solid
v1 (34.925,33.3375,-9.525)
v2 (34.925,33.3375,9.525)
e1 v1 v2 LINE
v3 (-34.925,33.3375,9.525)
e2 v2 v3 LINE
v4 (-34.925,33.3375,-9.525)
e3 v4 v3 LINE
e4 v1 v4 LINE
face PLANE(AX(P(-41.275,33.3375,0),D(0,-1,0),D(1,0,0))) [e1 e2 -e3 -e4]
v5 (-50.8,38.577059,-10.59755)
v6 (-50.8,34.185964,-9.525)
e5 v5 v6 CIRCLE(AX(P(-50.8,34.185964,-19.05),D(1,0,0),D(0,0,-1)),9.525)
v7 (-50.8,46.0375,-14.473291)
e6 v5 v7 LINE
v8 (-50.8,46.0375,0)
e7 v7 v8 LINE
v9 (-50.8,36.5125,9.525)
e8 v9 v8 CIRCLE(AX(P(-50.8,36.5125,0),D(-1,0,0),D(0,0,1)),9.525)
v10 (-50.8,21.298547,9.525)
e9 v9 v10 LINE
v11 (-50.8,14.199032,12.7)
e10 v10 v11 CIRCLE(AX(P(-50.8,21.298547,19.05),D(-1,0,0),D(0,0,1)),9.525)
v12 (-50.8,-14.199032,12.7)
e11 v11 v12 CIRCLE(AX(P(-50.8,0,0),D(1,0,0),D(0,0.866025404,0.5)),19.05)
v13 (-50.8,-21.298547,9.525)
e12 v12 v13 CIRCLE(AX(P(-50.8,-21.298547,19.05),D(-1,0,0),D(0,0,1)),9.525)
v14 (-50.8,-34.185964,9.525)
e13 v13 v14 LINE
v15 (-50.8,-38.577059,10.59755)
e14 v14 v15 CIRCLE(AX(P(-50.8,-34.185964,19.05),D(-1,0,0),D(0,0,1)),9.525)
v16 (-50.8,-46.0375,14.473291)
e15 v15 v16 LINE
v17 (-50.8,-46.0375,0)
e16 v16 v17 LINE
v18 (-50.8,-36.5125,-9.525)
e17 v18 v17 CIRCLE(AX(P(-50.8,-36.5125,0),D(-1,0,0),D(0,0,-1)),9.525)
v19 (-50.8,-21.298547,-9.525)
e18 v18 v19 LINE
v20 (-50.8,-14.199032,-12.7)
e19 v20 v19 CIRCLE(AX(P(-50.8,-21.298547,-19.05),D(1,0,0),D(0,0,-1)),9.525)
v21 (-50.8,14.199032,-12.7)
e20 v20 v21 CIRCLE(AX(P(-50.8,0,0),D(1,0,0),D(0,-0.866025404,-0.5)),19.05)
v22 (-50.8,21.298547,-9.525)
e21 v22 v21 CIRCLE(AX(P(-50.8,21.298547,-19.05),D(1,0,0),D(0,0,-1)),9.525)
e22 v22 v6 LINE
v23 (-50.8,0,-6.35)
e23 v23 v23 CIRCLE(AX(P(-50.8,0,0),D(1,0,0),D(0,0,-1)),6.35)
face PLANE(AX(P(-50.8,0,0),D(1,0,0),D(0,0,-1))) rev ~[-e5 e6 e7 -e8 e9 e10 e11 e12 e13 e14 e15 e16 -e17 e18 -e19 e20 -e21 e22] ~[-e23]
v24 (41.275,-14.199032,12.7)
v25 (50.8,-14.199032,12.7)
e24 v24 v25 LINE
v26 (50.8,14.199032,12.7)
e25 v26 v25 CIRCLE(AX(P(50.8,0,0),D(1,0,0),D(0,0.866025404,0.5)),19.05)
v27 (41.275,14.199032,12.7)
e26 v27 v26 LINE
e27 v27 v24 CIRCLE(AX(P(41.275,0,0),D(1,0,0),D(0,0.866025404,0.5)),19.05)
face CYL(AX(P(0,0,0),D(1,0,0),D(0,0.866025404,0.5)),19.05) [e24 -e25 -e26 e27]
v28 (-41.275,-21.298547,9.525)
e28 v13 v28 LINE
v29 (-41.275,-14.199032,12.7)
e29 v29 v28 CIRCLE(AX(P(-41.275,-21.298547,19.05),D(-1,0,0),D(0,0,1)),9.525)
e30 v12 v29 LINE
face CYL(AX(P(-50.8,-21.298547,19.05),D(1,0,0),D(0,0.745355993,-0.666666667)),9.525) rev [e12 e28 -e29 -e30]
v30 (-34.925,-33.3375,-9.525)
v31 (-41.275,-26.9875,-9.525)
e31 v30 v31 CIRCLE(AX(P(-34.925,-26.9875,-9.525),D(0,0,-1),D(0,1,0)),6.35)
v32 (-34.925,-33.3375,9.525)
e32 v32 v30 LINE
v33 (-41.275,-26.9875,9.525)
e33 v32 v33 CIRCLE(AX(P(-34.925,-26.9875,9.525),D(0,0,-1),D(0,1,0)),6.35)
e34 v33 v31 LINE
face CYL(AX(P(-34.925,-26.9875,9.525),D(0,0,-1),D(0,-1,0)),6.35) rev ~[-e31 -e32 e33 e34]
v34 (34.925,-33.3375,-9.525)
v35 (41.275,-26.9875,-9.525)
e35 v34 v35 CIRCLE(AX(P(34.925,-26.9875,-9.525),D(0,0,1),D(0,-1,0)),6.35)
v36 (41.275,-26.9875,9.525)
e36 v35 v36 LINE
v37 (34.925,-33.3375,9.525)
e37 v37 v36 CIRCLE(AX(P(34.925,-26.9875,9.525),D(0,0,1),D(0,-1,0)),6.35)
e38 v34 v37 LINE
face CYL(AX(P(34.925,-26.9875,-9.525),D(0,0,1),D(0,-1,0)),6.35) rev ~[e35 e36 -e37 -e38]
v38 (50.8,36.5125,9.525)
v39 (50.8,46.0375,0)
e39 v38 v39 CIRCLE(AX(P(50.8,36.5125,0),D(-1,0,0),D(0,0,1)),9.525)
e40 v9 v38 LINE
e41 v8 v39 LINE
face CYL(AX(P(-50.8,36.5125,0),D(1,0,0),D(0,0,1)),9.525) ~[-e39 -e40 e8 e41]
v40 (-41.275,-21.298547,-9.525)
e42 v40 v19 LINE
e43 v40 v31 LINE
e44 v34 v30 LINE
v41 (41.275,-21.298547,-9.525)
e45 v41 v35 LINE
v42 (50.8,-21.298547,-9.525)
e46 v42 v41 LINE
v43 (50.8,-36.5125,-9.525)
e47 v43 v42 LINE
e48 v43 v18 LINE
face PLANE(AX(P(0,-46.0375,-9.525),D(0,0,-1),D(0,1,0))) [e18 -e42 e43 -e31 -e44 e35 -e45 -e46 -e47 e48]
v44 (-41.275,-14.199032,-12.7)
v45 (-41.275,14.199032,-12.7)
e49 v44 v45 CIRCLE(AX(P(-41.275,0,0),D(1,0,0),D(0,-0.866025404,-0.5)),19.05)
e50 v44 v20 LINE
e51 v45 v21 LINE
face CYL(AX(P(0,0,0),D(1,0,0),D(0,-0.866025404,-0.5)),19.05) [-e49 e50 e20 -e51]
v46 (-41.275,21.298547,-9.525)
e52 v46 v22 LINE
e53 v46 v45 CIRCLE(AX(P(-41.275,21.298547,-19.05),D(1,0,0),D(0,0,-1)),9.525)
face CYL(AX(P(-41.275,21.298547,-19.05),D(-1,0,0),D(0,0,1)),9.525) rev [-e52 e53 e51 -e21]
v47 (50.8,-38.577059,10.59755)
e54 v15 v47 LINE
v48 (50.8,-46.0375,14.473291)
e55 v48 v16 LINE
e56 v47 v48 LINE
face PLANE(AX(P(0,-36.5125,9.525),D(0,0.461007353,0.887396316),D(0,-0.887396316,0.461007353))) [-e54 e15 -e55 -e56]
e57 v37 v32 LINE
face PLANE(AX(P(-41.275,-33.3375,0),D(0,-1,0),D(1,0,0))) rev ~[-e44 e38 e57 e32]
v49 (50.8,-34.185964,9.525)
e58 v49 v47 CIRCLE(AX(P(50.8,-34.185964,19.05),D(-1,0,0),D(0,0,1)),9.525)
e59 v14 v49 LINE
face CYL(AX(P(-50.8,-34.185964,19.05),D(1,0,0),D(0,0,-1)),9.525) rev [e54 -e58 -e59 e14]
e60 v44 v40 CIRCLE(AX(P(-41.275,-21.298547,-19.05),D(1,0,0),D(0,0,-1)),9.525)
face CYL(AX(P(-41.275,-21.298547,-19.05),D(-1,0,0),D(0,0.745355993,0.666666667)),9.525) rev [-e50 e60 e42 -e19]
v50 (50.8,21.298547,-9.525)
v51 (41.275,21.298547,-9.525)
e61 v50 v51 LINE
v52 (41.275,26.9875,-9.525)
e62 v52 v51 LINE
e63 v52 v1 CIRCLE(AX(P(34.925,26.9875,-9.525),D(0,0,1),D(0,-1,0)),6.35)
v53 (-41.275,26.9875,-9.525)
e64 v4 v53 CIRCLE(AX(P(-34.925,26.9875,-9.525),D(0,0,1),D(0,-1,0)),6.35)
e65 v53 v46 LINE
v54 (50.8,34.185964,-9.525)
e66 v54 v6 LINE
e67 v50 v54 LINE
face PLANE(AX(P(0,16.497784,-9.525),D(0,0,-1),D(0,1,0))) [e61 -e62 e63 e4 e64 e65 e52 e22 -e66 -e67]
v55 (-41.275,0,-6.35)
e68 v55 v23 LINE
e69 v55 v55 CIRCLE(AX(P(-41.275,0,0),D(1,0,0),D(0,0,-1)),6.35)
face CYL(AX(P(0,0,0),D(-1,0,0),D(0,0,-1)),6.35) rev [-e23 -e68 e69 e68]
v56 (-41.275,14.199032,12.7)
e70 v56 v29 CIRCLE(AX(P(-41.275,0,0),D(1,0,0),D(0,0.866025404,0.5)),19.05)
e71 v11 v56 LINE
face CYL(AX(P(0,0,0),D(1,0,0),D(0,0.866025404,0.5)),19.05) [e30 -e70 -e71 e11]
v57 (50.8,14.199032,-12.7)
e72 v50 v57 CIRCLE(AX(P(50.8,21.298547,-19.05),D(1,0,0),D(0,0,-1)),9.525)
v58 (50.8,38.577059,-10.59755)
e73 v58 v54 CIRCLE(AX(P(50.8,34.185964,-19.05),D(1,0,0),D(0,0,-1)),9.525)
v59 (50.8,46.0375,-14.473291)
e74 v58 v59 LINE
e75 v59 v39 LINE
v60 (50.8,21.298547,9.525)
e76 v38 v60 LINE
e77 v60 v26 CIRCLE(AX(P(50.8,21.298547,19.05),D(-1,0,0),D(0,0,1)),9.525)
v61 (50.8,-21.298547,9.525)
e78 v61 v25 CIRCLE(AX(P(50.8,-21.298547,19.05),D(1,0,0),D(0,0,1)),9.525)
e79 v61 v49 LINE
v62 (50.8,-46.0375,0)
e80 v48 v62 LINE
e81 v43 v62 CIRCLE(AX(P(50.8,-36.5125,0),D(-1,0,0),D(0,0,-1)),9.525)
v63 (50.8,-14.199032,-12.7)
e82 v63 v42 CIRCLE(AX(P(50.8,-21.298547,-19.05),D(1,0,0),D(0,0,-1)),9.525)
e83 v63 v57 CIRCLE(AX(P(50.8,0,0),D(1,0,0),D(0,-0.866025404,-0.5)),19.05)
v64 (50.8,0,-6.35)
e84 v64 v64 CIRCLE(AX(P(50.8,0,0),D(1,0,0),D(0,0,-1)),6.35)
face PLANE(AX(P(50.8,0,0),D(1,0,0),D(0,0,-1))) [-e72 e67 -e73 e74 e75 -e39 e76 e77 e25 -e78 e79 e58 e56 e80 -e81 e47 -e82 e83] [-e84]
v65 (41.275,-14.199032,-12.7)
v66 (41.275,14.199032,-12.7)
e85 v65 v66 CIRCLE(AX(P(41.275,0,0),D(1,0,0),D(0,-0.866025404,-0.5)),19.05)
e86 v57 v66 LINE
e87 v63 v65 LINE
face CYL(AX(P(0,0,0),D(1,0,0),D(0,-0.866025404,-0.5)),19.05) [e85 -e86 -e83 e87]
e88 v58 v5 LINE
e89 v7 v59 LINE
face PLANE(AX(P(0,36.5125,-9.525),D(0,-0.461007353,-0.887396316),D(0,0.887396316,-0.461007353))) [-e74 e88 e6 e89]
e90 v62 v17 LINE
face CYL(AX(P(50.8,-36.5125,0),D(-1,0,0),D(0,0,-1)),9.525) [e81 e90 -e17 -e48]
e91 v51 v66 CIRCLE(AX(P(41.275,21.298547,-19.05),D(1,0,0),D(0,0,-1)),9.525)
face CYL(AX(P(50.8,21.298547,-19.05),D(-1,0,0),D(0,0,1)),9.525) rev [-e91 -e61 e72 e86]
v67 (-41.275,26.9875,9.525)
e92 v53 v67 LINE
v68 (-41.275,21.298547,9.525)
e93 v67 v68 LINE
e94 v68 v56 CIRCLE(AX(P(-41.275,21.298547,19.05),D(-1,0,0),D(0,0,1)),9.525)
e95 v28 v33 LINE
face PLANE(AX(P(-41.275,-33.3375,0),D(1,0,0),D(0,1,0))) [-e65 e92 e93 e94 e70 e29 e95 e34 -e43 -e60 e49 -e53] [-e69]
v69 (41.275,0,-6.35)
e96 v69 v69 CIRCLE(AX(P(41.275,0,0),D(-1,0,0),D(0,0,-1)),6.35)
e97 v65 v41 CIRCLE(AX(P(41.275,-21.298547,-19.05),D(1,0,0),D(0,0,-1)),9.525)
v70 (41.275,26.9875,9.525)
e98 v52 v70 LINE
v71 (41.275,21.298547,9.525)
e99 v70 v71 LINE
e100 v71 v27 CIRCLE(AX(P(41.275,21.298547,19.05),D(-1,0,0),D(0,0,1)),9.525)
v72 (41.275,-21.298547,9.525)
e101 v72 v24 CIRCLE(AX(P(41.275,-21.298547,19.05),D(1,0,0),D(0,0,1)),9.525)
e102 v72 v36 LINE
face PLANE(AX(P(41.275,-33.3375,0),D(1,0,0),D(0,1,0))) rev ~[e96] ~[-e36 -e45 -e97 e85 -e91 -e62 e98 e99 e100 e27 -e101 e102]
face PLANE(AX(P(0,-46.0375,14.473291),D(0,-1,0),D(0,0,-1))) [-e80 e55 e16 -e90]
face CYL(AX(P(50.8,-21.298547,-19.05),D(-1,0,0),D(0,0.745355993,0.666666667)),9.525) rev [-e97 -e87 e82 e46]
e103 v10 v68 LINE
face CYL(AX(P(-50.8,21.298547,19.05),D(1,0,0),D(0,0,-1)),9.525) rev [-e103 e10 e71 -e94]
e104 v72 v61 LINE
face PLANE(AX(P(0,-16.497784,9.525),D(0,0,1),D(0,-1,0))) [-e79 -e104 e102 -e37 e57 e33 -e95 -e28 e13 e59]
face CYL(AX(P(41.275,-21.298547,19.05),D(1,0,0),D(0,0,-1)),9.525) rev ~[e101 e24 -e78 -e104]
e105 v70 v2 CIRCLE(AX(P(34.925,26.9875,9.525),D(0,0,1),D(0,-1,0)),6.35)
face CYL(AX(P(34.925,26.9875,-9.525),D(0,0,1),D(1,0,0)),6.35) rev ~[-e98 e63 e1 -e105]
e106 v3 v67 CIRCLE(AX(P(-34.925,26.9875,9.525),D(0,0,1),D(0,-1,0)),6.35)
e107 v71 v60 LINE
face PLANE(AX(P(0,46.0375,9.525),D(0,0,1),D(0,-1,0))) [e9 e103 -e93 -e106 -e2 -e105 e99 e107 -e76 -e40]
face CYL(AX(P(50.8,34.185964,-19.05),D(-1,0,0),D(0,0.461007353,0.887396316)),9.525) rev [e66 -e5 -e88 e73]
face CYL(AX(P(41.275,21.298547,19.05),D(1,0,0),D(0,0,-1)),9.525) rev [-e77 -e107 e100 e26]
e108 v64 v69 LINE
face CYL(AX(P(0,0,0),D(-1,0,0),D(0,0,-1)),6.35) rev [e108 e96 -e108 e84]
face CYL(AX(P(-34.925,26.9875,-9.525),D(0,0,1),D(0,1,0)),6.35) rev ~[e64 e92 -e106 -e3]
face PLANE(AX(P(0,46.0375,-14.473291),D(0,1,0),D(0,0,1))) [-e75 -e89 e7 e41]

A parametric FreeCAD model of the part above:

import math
import FreeCAD as App
import Part
import Sketcher

V = App.Vector
Q = App.Units.Quantity


def edges_at(feature, points):
    """Names of the edges that pass closest to the given points."""
    edges = feature.Shape.Edges
    near = lambda p: min(range(len(edges)), key=lambda i: edges[i].distToShape(Part.Vertex(*p))[0])
    return sorted({f"Edge{near(p) + 1}" for p in points})


def add_polygon(sketch, points):
    """Adds a closed chain of lines whose ends are joined by coincident constraints."""
    first, n = sketch.GeometryCount, len(points)
    for a, b in zip(points, points[1:] + points[:1]):
        sketch.addGeometry(Part.LineSegment(App.Vector(*a, 0), App.Vector(*b, 0)), False)
    for i in range(n):
        sketch.addConstraint(Sketcher.Constraint("Coincident", first + i, 2, first + (i + 1) % n, 1))

doc = App.newDocument("Part")
body = doc.addObject("PartDesign::Body", "Body")

sketch1 = body.newObject("Sketcher::SketchObject", "Sketch")
sketch1.AttachmentSupport = (doc.getObject("YZ_Plane"), [""])
sketch1.MapMode = "FlatFace"
sketch1.addGeometry([
    Part.LineSegment(V(36.5125, -9.525, 0), V(46.0375, -14.473291, 0)),
    Part.LineSegment(V(46.0375, -14.473291, 0), V(46.0375, 9.525, 0)),
    Part.LineSegment(V(46.0375, 9.525, 0), V(16.497784, 9.525, 0)),
    Part.ArcOfCircle(Part.Circle(V(0, 0, 0), V(0, 0, 1), 19.05), math.radians(30), math.radians(150)),
    Part.LineSegment(V(-16.497784, 9.525, 0), V(-36.5125, 9.525, 0)),
    Part.LineSegment(V(-36.5125, 9.525, 0), V(-46.0375, 14.473291, 0)),
    Part.LineSegment(V(-46.0375, 14.473291, 0), V(-46.0375, -9.525, 0)),
    Part.LineSegment(V(-46.0375, -9.525, 0), V(-16.497784, -9.525, 0)),
    Part.ArcOfCircle(Part.Circle(V(0, 0, 0), V(0, 0, 1), 19.05), math.radians(-150), math.radians(-30)),
    Part.LineSegment(V(16.497784, -9.525, 0), V(36.5125, -9.525, 0)),
    Part.Circle(V(0, 0, 0), V(0, 0, 1), 6.35),
], False)
sketch1.addConstraint([
    Sketcher.Constraint("Coincident", 0, 2, 1, 1),
    Sketcher.Constraint("Coincident", 1, 2, 2, 1),
    Sketcher.Constraint("Coincident", 2, 2, 3, 1),
    Sketcher.Constraint("Coincident", 3, 2, 4, 1),
    Sketcher.Constraint("Coincident", 4, 2, 5, 1),
    Sketcher.Constraint("Coincident", 5, 2, 6, 1),
    Sketcher.Constraint("Coincident", 6, 2, 7, 1),
    Sketcher.Constraint("Coincident", 7, 2, 8, 1),
    Sketcher.Constraint("Coincident", 8, 2, 9, 1),
    Sketcher.Constraint("Coincident", 9, 2, 0, 1),
    Sketcher.Constraint("Vertical", 1),
    Sketcher.Constraint("Horizontal", 2),
    Sketcher.Constraint("Horizontal", 4),
    Sketcher.Constraint("Vertical", 6),
    Sketcher.Constraint("Horizontal", 7),
    Sketcher.Constraint("Horizontal", 9),
    Sketcher.Constraint("Coincident", 3, 3, -1, 1),
    Sketcher.Constraint("Coincident", 8, 3, -1, 1),
    Sketcher.Constraint("Coincident", 10, 3, -1, 1),
    Sketcher.Constraint("Equal", 3, 8),
    Sketcher.Constraint("Symmetric", 0, 2, 5, 2, -1, 1),
    Sketcher.Constraint("Symmetric", 4, 2, 9, 2, -1, 1),
    Sketcher.Constraint("Horizontal", 2, 2, 3, 2),
    Sketcher.Constraint("Horizontal", 7, 2, 8, 2),
    Sketcher.Constraint("Diameter", 10, Q("0.5 in")),
    Sketcher.Constraint("Radius", 3, Q("0.75 in")),
    Sketcher.Constraint("DistanceY", 6, 2, 4, 2, Q("0.75 in")),
    Sketcher.Constraint("DistanceX", -1, 1, 0, 2, Q("1.8125 in")),
    Sketcher.Constraint("DistanceX", 4, 2, -1, 1, Q("1.4375 in")),
    Sketcher.Constraint("DistanceY", 1, 1, 1, 2, 23.998291),
])
pad1 = body.newObject("PartDesign::Pad", "Pad")
pad1.Profile = sketch1
pad1.Length = Q("4 in")
pad1.Midplane = True

sketch2 = body.newObject("Sketcher::SketchObject", "Sketch001")
sketch2.AttachmentSupport = (doc.getObject("XY_Plane"), [""])
sketch2.MapMode = "FlatFace"
add_polygon(sketch2, [(-41.275, 33.3375), (-41.275, -33.3375), (41.275, -33.3375), (41.275, 33.3375)])
sketch2.addConstraint([
    Sketcher.Constraint("Vertical", 0),
    Sketcher.Constraint("Horizontal", 1),
    Sketcher.Constraint("Vertical", 2),
    Sketcher.Constraint("Horizontal", 3),
    Sketcher.Constraint("Symmetric", 0, 2, 2, 2, -1, 1),
    Sketcher.Constraint("DistanceX", 1, 1, 1, 2, Q("3.25 in")),
    Sketcher.Constraint("DistanceY", 0, 2, 0, 1, Q("2.625 in")),
])
pocket1 = body.newObject("PartDesign::Pocket", "Pocket")
pocket1.Profile = sketch2
pocket1.Type = "ThroughAll"
pocket1.Midplane = True
doc.recompute()

fillet = body.newObject("PartDesign::Fillet", "Fillet")
fillet.Base = (pocket1, edges_at(pocket1, [
    (-41.275, 33.337, 0),
    (41.275, -33.337, 0),
    (41.275, 33.337, 0),
    (-41.275, -33.337, 0),
]))
fillet.Radius = Q("0.25 in")
doc.recompute()

fillet2 = body.newObject("PartDesign::Fillet", "Fillet001")
fillet2.Base = (fillet, edges_at(fillet, [
    (46.038, 16.498, -9.525),
    (46.038, -16.498, -9.525),
    (46.038, -16.498, 9.525),
    (46.038, 16.498, 9.525),
    (-46.038, 16.498, -9.525),
    (-46.038, -16.498, -9.525),
    (-46.038, -16.498, 9.525),
    (-46.038, 16.498, 9.525),
]))
fillet2.Radius = Q("0.375 in")
doc.recompute()

fillet3 = body.newObject("PartDesign::Fillet", "Fillet002")
fillet3.Base = (fillet2, edges_at(fillet2, [(0, -46.038, -9.525), (0, 46.038, 9.525)]))
fillet3.Radius = Q("0.375 in")
doc.recompute()

fillet4 = body.newObject("PartDesign::Fillet", "Fillet003")
fillet4.Base = (fillet3, edges_at(fillet3, [(0, -36.513, 9.525), (0, 36.513, -9.525)]))
fillet4.Radius = Q("0.375 in")

doc.recompute()
